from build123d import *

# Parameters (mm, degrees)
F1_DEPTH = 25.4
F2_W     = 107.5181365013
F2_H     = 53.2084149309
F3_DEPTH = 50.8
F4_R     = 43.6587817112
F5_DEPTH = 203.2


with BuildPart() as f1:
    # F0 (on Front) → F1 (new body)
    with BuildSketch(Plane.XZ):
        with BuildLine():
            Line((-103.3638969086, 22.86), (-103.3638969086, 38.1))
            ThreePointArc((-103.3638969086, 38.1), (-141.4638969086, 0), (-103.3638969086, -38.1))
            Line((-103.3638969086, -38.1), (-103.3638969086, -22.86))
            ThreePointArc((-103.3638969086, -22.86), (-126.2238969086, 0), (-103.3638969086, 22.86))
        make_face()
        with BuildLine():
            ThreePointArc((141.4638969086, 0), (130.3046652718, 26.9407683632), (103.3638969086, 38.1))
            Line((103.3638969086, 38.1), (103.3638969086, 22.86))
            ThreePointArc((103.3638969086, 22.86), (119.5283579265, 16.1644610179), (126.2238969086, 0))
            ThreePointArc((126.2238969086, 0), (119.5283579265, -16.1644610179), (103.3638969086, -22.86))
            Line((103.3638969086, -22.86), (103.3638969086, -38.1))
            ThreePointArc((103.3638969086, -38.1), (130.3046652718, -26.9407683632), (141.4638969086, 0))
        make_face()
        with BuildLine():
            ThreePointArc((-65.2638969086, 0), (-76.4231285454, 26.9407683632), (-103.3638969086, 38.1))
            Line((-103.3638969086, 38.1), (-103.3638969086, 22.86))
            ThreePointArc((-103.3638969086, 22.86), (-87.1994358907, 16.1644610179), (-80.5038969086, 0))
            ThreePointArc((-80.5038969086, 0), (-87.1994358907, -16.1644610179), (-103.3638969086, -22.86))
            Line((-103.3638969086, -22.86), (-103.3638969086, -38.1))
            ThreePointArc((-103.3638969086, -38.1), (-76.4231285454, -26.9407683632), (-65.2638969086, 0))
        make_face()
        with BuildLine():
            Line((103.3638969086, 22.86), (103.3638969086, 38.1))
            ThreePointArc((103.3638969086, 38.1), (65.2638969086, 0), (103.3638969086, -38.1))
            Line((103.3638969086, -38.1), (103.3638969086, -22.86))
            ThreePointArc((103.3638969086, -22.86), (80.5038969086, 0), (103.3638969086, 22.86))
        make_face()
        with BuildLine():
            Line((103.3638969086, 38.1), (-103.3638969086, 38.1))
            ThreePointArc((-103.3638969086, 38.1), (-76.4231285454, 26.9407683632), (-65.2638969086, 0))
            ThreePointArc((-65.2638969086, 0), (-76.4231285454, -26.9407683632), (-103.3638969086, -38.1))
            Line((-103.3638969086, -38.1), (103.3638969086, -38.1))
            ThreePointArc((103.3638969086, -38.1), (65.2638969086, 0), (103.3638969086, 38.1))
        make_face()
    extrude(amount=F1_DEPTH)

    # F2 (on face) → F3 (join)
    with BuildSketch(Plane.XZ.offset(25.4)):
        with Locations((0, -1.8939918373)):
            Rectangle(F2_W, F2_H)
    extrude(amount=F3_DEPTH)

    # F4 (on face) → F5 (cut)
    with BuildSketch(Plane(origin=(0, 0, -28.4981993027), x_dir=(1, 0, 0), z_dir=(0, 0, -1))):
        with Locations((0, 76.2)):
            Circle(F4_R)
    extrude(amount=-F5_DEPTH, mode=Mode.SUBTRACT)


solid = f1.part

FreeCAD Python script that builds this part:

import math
import FreeCAD as App
import Part
import Sketcher

V = App.Vector
Q = App.Units.Quantity


def add_polygon(sketch, points):
    """Adds a closed chain of lines whose ends are joined by coincident constraints."""
    first, n = sketch.GeometryCount, len(points)
    for a, b in zip(points, points[1:] + points[:1]):
        sketch.addGeometry(Part.LineSegment(App.Vector(*a, 0), App.Vector(*b, 0)), False)
    for i in range(n):
        sketch.addConstraint(Sketcher.Constraint("Coincident", first + i, 2, first + (i + 1) % n, 1))

doc = App.newDocument("Part")
params = doc.addObject("Spreadsheet::Sheet", "Params")
for row, (alias, value) in enumerate([
    ("sketch1_radius", "1.5 in"),
    ("sketch1_radius2", "0.9 in"),
    ("pad1_length", "1 in"),
    ("pad2_length", "2 in"),
    ("pocket1_length", "8 in"),
], start=1):
    params.set(f"A{row}", alias)
    params.set(f"B{row}", "=" + value)
    params.setAlias(f"B{row}", alias)

body = doc.addObject("PartDesign::Body", "Body")

sketch1 = body.newObject("Sketcher::SketchObject", "Sketch")
sketch1.AttachmentSupport = (doc.getObject("XZ_Plane"), [""])
sketch1.MapMode = "FlatFace"
sketch1.addGeometry([
    Part.ArcOfCircle(Part.Circle(V(-103.363897, 0, 0), V(0, 0, 1), 38.1), math.radians(90), math.radians(270)),
    Part.LineSegment(V(-103.363897, -38.1, 0), V(103.363897, -38.1, 0)),
    Part.ArcOfCircle(Part.Circle(V(103.363897, 0, 0), V(0, 0, 1), 38.1), math.radians(-90), math.radians(90)),
    Part.LineSegment(V(103.363897, 38.1, 0), V(-103.363897, 38.1, 0)),
    Part.ArcOfCircle(Part.Circle(V(-103.363897, 0, 0), V(0, 0, 1), 22.86), math.radians(90), math.radians(270)),
    Part.ArcOfCircle(Part.Circle(V(-103.363897, 0, 0), V(0, 0, 1), 22.86), math.radians(0), math.radians(90)),
    Part.ArcOfCircle(Part.Circle(V(-103.363897, 0, 0), V(0, 0, 1), 22.86), math.radians(-90), math.radians(0)),
    Part.ArcOfCircle(Part.Circle(V(103.363897, 0, 0), V(0, 0, 1), 22.86), math.radians(90), math.radians(270)),
    Part.ArcOfCircle(Part.Circle(V(103.363897, 0, 0), V(0, 0, 1), 22.86), math.radians(0), math.radians(90)),
    Part.ArcOfCircle(Part.Circle(V(103.363897, 0, 0), V(0, 0, 1), 22.86), math.radians(-90), math.radians(0)),
], False)
sketch1.addConstraint([
    Sketcher.Constraint("Tangent", 0, 2, 1, 1),
    Sketcher.Constraint("Tangent", 1, 2, 2, 1),
    Sketcher.Constraint("Tangent", 2, 2, 3, 1),
    Sketcher.Constraint("Tangent", 3, 2, 0, 1),
    Sketcher.Constraint("Tangent", 4, 1, 5, 2),
    Sketcher.Constraint("Tangent", 5, 1, 6, 2),
    Sketcher.Constraint("Tangent", 6, 1, 4, 2),
    Sketcher.Constraint("Tangent", 7, 1, 8, 2),
    Sketcher.Constraint("Tangent", 8, 1, 9, 2),
    Sketcher.Constraint("Tangent", 9, 1, 7, 2),
    Sketcher.Constraint("Horizontal", 1),
    Sketcher.Constraint("Horizontal", 3),
    Sketcher.Constraint("Coincident", 4, 3, 0, 3),
    Sketcher.Constraint("Coincident", 7, 3, 2, 3),
    Sketcher.Constraint("Equal", 6, 7),
    Sketcher.Constraint("Symmetric", 0, 3, 2, 3, -1, 1),
    Sketcher.Constraint("PointOnObject", 5, 1, -1),
    Sketcher.Constraint("PointOnObject", 8, 1, -1),
    Sketcher.Constraint("Vertical", 3, 2, 4, 1),
    Sketcher.Constraint("Vertical", 4, 1, 6, 1),
    Sketcher.Constraint("Vertical", 2, 2, 7, 1),
    Sketcher.Constraint("Vertical", 7, 1, 9, 1),
    Sketcher.Constraint("Radius", 0, Q("1.5 in")),
    Sketcher.Constraint("Radius", 4, Q("0.9 in")),
    Sketcher.Constraint("DistanceX", 1, 1, 1, 2, 206.727794),
])
sketch1.setExpression("Constraints[22]", "Params.sketch1_radius")
sketch1.setExpression("Constraints[23]", "Params.sketch1_radius2")
pad1 = body.newObject("PartDesign::Pad", "Pad")
pad1.Profile = sketch1
pad1.setExpression("Length", "Params.pad1_length")

sketch2 = body.newObject("Sketcher::SketchObject", "Sketch001")
sketch2.AttachmentSupport = (doc.getObject("XZ_Plane"), [""])
sketch2.MapMode = "FlatFace"
sketch2.AttachmentOffset = App.Placement(V(0, 0, 1 * 25.4), App.Rotation())
add_polygon(sketch2, [(-53.759068, 24.710216), (-53.759068, -28.498199), (53.759068, -28.498199), (53.759068, 24.710216)])
sketch2.addConstraint([
    Sketcher.Constraint("Vertical", 0),
    Sketcher.Constraint("Horizontal", 1),
    Sketcher.Constraint("Vertical", 2),
    Sketcher.Constraint("Horizontal", 3),
    Sketcher.Constraint("DistanceY", 0, 2, -1, 1, 28.498199),
    Sketcher.Constraint("DistanceX", 1, 1, 1, 2, 107.518137),
    Sketcher.Constraint("DistanceY", 0, 2, 0, 1, 53.208415),
    Sketcher.Constraint("DistanceX", 0, 2, -1, 1, 53.759068),
])
pad2 = body.newObject("PartDesign::Pad", "Pad001")
pad2.Profile = sketch2
pad2.setExpression("Length", "Params.pad2_length")

sketch3 = body.newObject("Sketcher::SketchObject", "Sketch002")
sketch3.AttachmentSupport = (doc.getObject("XY_Plane"), [""])
sketch3.MapMode = "FlatFace"
sketch3.AttachmentOffset = App.Placement(V(0, 0, -28.498199), App.Rotation())
sketch3.addGeometry(Part.Circle(V(0, -76.2, 0), V(0, 0, 1), 43.658782), False)
sketch3.addConstraint([
    Sketcher.Constraint("PointOnObject", 0, 3, -2),
    Sketcher.Constraint("DistanceY", 0, 3, -1, 1, Q("3 in")),
    Sketcher.Constraint("Diameter", 0, 87.317563),
])
pocket1 = body.newObject("PartDesign::Pocket", "Pocket")
pocket1.Profile = sketch3
pocket1.setExpression("Length", "Params.pocket1_length")
pocket1.Reversed = True

doc.recompute()
